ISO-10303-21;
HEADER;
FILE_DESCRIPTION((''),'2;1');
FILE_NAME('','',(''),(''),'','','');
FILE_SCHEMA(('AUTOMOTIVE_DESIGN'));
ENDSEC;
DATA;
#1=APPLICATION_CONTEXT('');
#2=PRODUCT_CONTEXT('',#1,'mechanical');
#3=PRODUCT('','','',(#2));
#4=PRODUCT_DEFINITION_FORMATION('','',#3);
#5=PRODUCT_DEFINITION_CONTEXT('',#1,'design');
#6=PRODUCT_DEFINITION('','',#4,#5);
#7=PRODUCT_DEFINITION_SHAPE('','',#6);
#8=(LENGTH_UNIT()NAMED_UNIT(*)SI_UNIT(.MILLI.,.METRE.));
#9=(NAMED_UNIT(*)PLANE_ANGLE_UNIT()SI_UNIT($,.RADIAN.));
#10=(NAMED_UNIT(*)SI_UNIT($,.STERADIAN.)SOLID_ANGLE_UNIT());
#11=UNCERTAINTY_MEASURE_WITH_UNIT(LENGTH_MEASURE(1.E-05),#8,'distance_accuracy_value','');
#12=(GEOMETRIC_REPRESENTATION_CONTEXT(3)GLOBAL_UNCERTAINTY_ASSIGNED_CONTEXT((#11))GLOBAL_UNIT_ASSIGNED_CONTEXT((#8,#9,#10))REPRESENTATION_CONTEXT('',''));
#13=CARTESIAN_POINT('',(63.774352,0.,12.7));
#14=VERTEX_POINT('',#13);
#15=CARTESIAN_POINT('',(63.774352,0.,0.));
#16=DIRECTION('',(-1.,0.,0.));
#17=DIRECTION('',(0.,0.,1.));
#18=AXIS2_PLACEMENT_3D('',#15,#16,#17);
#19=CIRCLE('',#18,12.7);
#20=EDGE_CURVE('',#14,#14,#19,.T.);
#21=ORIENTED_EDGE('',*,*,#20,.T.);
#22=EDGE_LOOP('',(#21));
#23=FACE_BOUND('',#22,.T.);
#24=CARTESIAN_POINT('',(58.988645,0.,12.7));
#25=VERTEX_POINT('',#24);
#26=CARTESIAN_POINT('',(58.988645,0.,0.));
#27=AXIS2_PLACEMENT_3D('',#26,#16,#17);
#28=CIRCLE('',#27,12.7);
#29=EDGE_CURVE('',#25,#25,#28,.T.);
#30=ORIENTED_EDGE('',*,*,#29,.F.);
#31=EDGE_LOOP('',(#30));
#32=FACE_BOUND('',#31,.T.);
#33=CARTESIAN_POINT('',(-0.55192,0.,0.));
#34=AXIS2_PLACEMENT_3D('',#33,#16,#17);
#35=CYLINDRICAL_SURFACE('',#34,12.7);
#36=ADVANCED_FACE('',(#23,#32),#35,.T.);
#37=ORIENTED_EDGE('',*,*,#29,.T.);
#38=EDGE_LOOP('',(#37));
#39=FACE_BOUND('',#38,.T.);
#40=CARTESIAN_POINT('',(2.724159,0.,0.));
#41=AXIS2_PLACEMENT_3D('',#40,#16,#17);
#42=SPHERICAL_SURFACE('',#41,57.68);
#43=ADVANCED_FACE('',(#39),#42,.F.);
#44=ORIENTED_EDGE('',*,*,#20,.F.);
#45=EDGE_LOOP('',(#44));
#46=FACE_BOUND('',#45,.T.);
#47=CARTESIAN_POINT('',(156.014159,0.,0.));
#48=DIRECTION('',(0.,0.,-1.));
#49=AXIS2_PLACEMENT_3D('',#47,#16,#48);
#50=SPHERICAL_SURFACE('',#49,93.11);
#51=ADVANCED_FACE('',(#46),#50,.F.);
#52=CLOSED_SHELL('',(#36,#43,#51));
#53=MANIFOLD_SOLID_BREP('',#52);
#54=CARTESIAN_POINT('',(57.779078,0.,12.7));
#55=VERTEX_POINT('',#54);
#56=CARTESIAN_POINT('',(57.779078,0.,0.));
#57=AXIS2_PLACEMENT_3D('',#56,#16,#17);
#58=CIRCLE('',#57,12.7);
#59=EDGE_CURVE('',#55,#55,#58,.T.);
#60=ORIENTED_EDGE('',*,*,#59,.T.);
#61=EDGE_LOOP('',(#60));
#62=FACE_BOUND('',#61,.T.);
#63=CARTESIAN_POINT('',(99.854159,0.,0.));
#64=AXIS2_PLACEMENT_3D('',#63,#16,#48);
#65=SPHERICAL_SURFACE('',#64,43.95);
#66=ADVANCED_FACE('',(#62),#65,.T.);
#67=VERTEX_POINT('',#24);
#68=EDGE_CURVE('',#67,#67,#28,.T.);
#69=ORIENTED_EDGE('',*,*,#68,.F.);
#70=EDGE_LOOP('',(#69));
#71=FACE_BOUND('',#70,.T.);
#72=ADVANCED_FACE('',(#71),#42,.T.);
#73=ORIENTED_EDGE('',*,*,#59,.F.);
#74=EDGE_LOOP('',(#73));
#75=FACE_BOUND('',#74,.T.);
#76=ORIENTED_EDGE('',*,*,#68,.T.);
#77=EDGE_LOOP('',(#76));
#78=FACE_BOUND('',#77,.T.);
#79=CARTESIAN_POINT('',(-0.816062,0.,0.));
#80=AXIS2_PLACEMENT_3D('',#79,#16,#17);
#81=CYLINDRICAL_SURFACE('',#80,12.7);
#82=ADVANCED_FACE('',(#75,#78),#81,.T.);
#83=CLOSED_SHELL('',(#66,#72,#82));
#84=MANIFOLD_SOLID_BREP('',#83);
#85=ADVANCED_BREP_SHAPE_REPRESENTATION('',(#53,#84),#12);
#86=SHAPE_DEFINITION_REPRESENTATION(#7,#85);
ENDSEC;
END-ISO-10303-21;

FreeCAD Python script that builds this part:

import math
import FreeCAD as App
import Part
import Sketcher
from FreeCAD import Vector
Q = App.Units.Quantity

doc = App.newDocument("Part")
body = doc.addObject("PartDesign::Body", "Body")

# Sketch on XZ plane
sketch1 = doc.addObject("Sketcher::SketchObject", "Sketch")
body.addObject(sketch1)
sketch1.AttachmentSupport = (doc.XZ_Plane, [""])
sketch1.MapMode = "FlatFace"
sketch1.addGeometry([
    Part.ArcOfCircle(Part.Circle(Vector(99.854159, 0, 0), Vector(0, 0, 1), 43.95), math.radians(180), math.radians(196.795986)),
    Part.LineSegment(Vector(55.904159, 0, 0), Vector(60.404159, 0, 0)),
    Part.ArcOfCircle(Part.Circle(Vector(2.724159, 0, 0), Vector(0, 0, 1), 57.68), math.radians(-12.719623), math.radians(0)),
    Part.LineSegment(Vector(58.988645, -12.7, 0), Vector(57.779078, -12.7, 0)),
], False)
sketch1.addConstraint([
    Sketcher.Constraint("Coincident", 0, 1, 1, 1),
    Sketcher.Constraint("Coincident", 1, 2, 2, 2),
    Sketcher.Constraint("Coincident", 2, 1, 3, 1),
    Sketcher.Constraint("Coincident", 3, 2, 0, 2),
    Sketcher.Constraint("Horizontal", 1),
    Sketcher.Constraint("Horizontal", 3),
    Sketcher.Constraint("PointOnObject", 0, 3, -1),
    Sketcher.Constraint("PointOnObject", 2, 3, -1),
    Sketcher.Constraint("PointOnObject", 0, 1, -1),
    Sketcher.Constraint("Radius", 0, Q("43.95 mm")),
    Sketcher.Constraint("Radius", 2, Q("57.68 mm")),
    Sketcher.Constraint("DistanceX", 1, 1, 1, 2, Q("4.5 mm")),
    Sketcher.Constraint("DistanceY", 2, 1, -1, 1, Q("12.7 mm")),
    Sketcher.Constraint("DistanceX", -1, 1, 0, 3, Q("99.854159 mm")),
])
revolution = doc.addObject("PartDesign::Revolution", "Revolution")
body.addObject(revolution)
revolution.Profile = sketch1
revolution.ReferenceAxis = (sketch1, ["H_Axis"])
revolution.Angle = 360
body2 = doc.addObject("PartDesign::Body", "Body001")

# Sketch on XZ plane
sketch2 = doc.addObject("Sketcher::SketchObject", "Sketch001")
body2.addObject(sketch2)
sketch2.AttachmentSupport = (doc.getObject("XZ_Plane001"), [""])
sketch2.MapMode = "FlatFace"
sketch2.addGeometry([
    Part.LineSegment(Vector(63.774352, -12.7, 0), Vector(58.988645, -12.7, 0)),
    Part.ArcOfCircle(Part.Circle(Vector(2.724159, 0, 0), Vector(0, 0, 1), 57.68), math.radians(-12.719623), math.radians(0)),
    Part.LineSegment(Vector(60.404159, 0, 0), Vector(62.904159, 0, 0)),
    Part.ArcOfCircle(Part.Circle(Vector(156.014159, 0, 0), Vector(0, 0, 1), 93.11), math.radians(180), math.radians(187.839456)),
], False)
sketch2.addConstraint([
    Sketcher.Constraint("Coincident", 0, 2, 1, 1),
    Sketcher.Constraint("Coincident", 1, 2, 2, 1),
    Sketcher.Constraint("Coincident", 2, 2, 3, 1),
    Sketcher.Constraint("Coincident", 3, 2, 0, 1),
    Sketcher.Constraint("Horizontal", 0),
    Sketcher.Constraint("Horizontal", 2),
    Sketcher.Constraint("PointOnObject", 1, 3, -1),
    Sketcher.Constraint("PointOnObject", 3, 3, -1),
    Sketcher.Constraint("PointOnObject", 1, 2, -1),
    Sketcher.Constraint("Radius", 1, Q("57.68 mm")),
    Sketcher.Constraint("Radius", 3, Q("93.11 mm")),
    Sketcher.Constraint("DistanceX", 2, 1, 2, 2, Q("2.5 mm")),
    Sketcher.Constraint("DistanceY", 0, 2, -1, 1, Q("12.7 mm")),
    Sketcher.Constraint("DistanceX", -1, 1, 1, 3, Q("2.724159 mm")),
])
revolution2 = doc.addObject("PartDesign::Revolution", "Revolution001")
body2.addObject(revolution2)
revolution2.Profile = sketch2
revolution2.ReferenceAxis = (sketch2, ["H_Axis"])
revolution2.Angle = 360

doc.recompute()
